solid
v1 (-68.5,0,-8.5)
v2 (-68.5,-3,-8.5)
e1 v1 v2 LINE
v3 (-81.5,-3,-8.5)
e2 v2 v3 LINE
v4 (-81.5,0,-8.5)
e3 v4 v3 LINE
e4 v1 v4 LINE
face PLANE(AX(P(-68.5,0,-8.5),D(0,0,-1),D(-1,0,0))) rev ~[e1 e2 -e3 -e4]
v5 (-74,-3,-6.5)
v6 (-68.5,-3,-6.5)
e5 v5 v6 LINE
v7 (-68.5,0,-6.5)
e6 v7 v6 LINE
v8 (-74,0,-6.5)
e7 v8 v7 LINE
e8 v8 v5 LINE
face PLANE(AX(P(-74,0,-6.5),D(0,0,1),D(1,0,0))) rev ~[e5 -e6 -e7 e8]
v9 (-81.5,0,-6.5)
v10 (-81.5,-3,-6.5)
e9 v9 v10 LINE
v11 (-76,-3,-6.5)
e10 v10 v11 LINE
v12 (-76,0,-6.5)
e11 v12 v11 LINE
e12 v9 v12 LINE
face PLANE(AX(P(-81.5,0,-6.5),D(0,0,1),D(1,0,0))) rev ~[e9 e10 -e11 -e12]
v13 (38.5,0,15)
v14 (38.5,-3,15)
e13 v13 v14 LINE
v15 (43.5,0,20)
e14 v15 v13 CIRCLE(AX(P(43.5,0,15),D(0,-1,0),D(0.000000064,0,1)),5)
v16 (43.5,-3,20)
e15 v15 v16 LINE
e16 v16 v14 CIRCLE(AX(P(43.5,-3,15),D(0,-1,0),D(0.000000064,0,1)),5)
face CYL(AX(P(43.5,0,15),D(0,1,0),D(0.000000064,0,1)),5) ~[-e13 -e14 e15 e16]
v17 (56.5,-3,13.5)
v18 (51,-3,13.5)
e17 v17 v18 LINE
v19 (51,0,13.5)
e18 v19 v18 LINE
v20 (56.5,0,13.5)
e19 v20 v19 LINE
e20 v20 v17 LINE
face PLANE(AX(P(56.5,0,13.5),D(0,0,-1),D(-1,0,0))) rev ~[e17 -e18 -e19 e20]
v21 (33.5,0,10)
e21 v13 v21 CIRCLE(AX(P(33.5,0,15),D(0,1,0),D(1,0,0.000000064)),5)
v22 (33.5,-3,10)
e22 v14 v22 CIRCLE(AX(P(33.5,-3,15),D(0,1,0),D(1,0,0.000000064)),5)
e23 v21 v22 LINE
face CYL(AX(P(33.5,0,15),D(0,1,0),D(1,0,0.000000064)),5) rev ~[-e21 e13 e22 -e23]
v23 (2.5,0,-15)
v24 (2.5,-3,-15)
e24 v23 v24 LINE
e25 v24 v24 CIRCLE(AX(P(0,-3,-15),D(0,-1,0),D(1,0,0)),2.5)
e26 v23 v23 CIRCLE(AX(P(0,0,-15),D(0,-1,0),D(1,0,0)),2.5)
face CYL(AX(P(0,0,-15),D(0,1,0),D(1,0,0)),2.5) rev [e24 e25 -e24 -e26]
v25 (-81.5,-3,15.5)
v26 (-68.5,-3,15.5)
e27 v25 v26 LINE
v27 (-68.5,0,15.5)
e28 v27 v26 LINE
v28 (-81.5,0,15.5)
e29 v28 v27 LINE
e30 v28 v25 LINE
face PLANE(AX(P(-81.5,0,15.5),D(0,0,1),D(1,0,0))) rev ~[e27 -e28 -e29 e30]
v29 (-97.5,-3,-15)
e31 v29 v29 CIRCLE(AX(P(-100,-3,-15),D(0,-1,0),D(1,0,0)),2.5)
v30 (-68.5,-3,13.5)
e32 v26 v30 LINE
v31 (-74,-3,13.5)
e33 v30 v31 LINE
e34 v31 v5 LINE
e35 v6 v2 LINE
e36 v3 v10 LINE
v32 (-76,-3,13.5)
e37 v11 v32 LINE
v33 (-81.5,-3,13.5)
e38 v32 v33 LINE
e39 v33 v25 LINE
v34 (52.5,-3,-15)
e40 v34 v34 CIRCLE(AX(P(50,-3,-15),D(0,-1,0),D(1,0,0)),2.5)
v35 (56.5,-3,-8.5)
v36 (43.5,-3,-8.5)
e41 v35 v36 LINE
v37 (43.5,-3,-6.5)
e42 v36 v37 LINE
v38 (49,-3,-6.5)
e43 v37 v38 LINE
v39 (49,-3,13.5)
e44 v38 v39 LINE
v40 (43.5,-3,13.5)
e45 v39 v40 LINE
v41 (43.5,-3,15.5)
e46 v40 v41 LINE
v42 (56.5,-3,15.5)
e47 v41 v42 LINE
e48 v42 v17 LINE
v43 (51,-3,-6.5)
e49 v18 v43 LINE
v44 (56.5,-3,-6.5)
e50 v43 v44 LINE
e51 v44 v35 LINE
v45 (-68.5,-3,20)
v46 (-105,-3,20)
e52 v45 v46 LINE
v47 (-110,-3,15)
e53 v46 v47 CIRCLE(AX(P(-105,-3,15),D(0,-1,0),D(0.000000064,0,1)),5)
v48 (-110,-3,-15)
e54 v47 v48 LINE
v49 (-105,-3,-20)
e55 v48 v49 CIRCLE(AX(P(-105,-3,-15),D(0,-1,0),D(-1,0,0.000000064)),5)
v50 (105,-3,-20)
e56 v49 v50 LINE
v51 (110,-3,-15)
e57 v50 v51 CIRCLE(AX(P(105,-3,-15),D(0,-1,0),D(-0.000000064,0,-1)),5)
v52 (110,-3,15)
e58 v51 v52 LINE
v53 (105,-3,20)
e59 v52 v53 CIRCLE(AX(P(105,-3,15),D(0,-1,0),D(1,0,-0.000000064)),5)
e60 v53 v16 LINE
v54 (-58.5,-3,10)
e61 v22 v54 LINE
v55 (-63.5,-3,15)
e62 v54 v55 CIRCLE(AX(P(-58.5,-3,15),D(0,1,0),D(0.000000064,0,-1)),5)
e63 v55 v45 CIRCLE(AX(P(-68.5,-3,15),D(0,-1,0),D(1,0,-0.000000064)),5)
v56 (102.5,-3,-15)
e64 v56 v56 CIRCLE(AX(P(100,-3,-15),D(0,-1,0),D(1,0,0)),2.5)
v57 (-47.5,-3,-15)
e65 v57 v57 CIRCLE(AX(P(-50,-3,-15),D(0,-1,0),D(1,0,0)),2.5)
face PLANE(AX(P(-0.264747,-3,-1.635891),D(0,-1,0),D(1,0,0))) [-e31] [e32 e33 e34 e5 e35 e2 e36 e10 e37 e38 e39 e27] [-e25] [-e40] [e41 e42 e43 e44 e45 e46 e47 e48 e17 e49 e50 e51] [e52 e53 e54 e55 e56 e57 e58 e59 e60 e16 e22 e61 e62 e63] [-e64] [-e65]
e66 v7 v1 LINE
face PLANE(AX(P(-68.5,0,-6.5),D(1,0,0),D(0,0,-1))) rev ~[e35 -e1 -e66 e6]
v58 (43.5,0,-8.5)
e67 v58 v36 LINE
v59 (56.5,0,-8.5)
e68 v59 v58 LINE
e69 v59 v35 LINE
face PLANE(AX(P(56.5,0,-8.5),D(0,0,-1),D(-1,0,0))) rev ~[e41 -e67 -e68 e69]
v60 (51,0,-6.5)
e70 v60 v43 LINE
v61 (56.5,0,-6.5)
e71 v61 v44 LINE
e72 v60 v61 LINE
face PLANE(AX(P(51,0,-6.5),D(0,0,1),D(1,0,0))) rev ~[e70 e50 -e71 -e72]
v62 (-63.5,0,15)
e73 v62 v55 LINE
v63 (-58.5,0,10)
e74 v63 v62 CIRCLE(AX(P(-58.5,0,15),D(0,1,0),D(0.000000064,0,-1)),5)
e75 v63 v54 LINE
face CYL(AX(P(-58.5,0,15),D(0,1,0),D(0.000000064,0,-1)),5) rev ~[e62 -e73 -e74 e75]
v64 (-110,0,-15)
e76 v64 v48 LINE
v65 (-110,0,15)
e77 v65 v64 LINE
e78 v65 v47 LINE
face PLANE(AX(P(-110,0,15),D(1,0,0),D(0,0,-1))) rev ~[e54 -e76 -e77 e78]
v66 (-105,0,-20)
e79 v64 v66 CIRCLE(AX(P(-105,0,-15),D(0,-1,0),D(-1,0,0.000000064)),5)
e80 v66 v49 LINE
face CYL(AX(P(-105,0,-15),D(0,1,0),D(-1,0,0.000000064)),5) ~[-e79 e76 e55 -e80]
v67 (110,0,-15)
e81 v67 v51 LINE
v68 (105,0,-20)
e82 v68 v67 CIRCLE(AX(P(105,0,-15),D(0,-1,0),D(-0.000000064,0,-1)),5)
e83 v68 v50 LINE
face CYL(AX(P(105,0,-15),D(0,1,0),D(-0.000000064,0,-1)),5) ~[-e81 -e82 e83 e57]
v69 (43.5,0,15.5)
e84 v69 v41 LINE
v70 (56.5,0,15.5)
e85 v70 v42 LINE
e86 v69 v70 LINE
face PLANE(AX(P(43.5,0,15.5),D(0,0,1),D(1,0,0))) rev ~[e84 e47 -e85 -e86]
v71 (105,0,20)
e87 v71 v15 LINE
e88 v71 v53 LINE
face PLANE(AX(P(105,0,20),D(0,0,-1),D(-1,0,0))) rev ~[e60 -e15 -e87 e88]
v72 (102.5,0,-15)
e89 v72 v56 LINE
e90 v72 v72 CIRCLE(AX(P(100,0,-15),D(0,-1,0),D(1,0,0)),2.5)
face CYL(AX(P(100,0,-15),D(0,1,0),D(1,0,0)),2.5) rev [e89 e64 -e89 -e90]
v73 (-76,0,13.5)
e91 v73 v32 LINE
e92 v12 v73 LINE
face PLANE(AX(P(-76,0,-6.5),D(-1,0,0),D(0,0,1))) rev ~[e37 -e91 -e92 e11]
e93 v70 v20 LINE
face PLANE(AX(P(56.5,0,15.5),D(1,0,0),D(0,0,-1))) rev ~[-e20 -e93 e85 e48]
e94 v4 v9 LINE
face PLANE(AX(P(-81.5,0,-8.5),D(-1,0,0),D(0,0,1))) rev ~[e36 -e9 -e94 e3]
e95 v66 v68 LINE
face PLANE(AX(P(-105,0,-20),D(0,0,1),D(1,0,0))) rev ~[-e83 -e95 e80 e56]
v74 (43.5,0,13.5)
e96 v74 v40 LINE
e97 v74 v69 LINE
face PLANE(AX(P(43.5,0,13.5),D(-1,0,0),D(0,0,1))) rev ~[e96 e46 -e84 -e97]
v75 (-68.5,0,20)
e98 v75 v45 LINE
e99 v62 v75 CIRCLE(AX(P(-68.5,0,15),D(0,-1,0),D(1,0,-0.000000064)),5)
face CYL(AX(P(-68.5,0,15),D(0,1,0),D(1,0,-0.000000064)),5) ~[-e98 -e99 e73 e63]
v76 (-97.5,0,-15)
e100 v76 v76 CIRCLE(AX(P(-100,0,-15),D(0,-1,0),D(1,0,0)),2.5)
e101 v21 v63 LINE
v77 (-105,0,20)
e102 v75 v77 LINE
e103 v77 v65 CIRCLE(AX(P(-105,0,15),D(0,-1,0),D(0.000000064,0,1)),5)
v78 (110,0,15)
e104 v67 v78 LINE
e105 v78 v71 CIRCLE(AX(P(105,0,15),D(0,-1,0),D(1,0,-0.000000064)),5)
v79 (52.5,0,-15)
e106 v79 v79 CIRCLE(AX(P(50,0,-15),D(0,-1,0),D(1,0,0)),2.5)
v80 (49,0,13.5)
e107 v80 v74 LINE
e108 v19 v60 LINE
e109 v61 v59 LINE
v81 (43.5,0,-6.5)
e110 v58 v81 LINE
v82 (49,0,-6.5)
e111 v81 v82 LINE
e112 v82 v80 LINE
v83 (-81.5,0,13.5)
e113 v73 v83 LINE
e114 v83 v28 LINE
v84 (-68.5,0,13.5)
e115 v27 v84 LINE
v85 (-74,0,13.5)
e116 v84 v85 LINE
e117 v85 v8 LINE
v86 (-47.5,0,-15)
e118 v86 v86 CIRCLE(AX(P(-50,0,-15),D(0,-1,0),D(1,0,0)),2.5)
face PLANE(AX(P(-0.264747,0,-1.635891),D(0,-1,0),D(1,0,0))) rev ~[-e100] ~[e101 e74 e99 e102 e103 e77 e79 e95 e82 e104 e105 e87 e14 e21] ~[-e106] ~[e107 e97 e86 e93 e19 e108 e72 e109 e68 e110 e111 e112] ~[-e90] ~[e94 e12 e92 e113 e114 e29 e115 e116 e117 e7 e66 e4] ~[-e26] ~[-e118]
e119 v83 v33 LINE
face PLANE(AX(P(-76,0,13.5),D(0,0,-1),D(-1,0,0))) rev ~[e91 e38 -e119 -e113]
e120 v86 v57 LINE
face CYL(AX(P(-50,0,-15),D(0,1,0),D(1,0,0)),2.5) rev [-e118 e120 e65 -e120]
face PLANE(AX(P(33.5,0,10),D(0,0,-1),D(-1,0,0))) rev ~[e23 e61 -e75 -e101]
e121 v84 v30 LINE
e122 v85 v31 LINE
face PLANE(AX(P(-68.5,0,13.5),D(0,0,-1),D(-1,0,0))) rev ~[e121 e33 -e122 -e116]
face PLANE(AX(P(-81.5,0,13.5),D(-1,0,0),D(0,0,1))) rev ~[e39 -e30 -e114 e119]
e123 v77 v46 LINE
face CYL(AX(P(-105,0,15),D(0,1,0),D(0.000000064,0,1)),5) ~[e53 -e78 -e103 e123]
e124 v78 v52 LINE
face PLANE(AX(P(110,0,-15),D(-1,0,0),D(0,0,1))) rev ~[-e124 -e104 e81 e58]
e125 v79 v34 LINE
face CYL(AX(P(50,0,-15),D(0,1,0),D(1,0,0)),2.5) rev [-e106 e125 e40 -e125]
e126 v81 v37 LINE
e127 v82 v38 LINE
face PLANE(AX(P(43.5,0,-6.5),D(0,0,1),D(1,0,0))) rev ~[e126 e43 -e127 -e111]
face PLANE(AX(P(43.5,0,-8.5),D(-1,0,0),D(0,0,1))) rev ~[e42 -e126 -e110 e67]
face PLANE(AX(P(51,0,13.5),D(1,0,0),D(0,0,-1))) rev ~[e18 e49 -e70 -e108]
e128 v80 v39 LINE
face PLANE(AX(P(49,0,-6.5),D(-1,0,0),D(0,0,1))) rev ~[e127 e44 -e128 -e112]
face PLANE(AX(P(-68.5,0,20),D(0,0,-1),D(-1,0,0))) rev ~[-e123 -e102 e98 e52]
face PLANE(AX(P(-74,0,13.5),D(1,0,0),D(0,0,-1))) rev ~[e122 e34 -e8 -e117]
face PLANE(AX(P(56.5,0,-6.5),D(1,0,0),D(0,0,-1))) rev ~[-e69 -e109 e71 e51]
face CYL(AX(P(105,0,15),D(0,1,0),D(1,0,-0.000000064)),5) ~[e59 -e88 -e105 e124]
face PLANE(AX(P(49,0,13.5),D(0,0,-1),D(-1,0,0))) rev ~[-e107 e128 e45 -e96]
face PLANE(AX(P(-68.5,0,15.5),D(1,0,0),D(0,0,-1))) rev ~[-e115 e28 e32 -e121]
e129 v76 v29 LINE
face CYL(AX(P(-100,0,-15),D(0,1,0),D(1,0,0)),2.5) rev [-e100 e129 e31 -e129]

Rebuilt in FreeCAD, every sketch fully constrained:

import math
import FreeCAD as App
import Part
import Sketcher
Q = App.Units.Quantity


def add_polygon(sketch, points):
    """Adds a closed chain of lines whose ends are joined by coincident constraints."""
    first, n = sketch.GeometryCount, len(points)
    for a, b in zip(points, points[1:] + points[:1]):
        sketch.addGeometry(Part.LineSegment(App.Vector(*a, 0), App.Vector(*b, 0)), False)
    for i in range(n):
        sketch.addConstraint(Sketcher.Constraint("Coincident", first + i, 2, first + (i + 1) % n, 1))

doc = App.newDocument("Part")
body = doc.addObject("PartDesign::Body", "Body")

# Sketch on XZ plane
sketch1 = doc.addObject("Sketcher::SketchObject", "Sketch")
body.addObject(sketch1)
sketch1.AttachmentSupport = (doc.XZ_Plane, [""])
sketch1.MapMode = "FlatFace"
sketch1.addGeometry(Part.LineSegment(App.Vector(-68.5, 20, 0), App.Vector(-105, 20, 0)), False)  # 0
sketch1.addGeometry(Part.ArcOfCircle(Part.Circle(App.Vector(-105, 15, 0), App.Vector(0, 0, 1), 5), math.radians(90), math.radians(180)), False)  # 1
sketch1.addGeometry(Part.LineSegment(App.Vector(-110, 15, 0), App.Vector(-110, -15, 0)), False)  # 2
sketch1.addGeometry(Part.ArcOfCircle(Part.Circle(App.Vector(-105, -15, 0), App.Vector(0, 0, 1), 5), math.radians(180), math.radians(270)), False)  # 3
sketch1.addGeometry(Part.LineSegment(App.Vector(-105, -20, 0), App.Vector(105, -20, 0)), False)  # 4
sketch1.addGeometry(Part.ArcOfCircle(Part.Circle(App.Vector(105, -15, 0), App.Vector(0, 0, 1), 5), math.radians(-90), math.radians(0)), False)  # 5
sketch1.addGeometry(Part.LineSegment(App.Vector(110, -15, 0), App.Vector(110, 15, 0)), False)  # 6
sketch1.addGeometry(Part.ArcOfCircle(Part.Circle(App.Vector(105, 15, 0), App.Vector(0, 0, 1), 5), math.radians(0), math.radians(90)), False)  # 7
sketch1.addGeometry(Part.LineSegment(App.Vector(105, 20, 0), App.Vector(43.5, 20, 0)), False)  # 8
sketch1.addGeometry(Part.ArcOfCircle(Part.Circle(App.Vector(43.5, 15, 0), App.Vector(0, 0, 1), 5), math.radians(90), math.radians(180)), False)  # 9
sketch1.addGeometry(Part.ArcOfCircle(Part.Circle(App.Vector(33.5, 15, 0), App.Vector(0, 0, 1), 5), math.radians(-90), math.radians(0)), False)  # 10
sketch1.addGeometry(Part.LineSegment(App.Vector(33.5, 10, 0), App.Vector(-58.5, 10, 0)), False)  # 11
sketch1.addGeometry(Part.ArcOfCircle(Part.Circle(App.Vector(-58.5, 15, 0), App.Vector(0, 0, 1), 5), math.radians(180), math.radians(270)), False)  # 12
sketch1.addGeometry(Part.ArcOfCircle(Part.Circle(App.Vector(-68.5, 15, 0), App.Vector(0, 0, 1), 5), math.radians(0), math.radians(90)), False)  # 13
sketch1.addGeometry(Part.Circle(App.Vector(-100, -15, 0), App.Vector(0, 0, 1), 2.5), False)  # 14
sketch1.addGeometry(Part.Circle(App.Vector(-50, -15, 0), App.Vector(0, 0, 1), 2.5), False)  # 15
sketch1.addGeometry(Part.Circle(App.Vector(0, -15, 0), App.Vector(0, 0, 1), 2.5), False)  # 16
sketch1.addGeometry(Part.Circle(App.Vector(50, -15, 0), App.Vector(0, 0, 1), 2.5), False)  # 17
sketch1.addGeometry(Part.Circle(App.Vector(100, -15, 0), App.Vector(0, 0, 1), 2.5), False)  # 18
add_polygon(sketch1, [(-76, 13.5), (-81.5, 13.5), (-81.5, 15.5), (-68.5, 15.5), (-68.5, 13.5), (-74, 13.5), (-74, -6.5), (-68.5, -6.5), (-68.5, -8.5), (-81.5, -8.5), (-81.5, -6.5), (-76, -6.5)])  # lines 19-30
add_polygon(sketch1, [(43.5, -8.5), (43.5, -6.5), (49, -6.5), (49, 13.5), (43.5, 13.5), (43.5, 15.5), (56.5, 15.5), (56.5, 13.5), (51, 13.5), (51, -6.5), (56.5, -6.5), (56.5, -8.5)])  # lines 31-42
sketch1.addConstraint([
    Sketcher.Constraint("Tangent", 0, 2, 1, 1),
    Sketcher.Constraint("Tangent", 1, 2, 2, 1),
    Sketcher.Constraint("Tangent", 2, 2, 3, 1),
    Sketcher.Constraint("Tangent", 3, 2, 4, 1),
    Sketcher.Constraint("Tangent", 4, 2, 5, 1),
    Sketcher.Constraint("Tangent", 5, 2, 6, 1),
    Sketcher.Constraint("Tangent", 6, 2, 7, 1),
    Sketcher.Constraint("Tangent", 7, 2, 8, 1),
    Sketcher.Constraint("Tangent", 8, 2, 9, 1),
    Sketcher.Constraint("Tangent", 9, 2, 10, 2),
    Sketcher.Constraint("Tangent", 10, 1, 11, 1),
    Sketcher.Constraint("Tangent", 11, 2, 12, 2),
    Sketcher.Constraint("Tangent", 12, 1, 13, 1),
    Sketcher.Constraint("Tangent", 13, 2, 0, 1),
    Sketcher.Constraint("Horizontal", 0),
    Sketcher.Constraint("Vertical", 2),
    Sketcher.Constraint("Horizontal", 4),
    Sketcher.Constraint("Vertical", 6),
    Sketcher.Constraint("Horizontal", 8),
    Sketcher.Constraint("Horizontal", 11),
    Sketcher.Constraint("Horizontal", 19),
    Sketcher.Constraint("Vertical", 20),
    Sketcher.Constraint("Horizontal", 21),
    Sketcher.Constraint("Vertical", 22),
    Sketcher.Constraint("Horizontal", 23),
    Sketcher.Constraint("Vertical", 24),
    Sketcher.Constraint("Horizontal", 25),
    Sketcher.Constraint("Vertical", 26),
    Sketcher.Constraint("Horizontal", 27),
    Sketcher.Constraint("Vertical", 28),
    Sketcher.Constraint("Horizontal", 29),
    Sketcher.Constraint("Vertical", 30),
    Sketcher.Constraint("Vertical", 31),
    Sketcher.Constraint("Horizontal", 32),
    Sketcher.Constraint("Vertical", 33),
    Sketcher.Constraint("Horizontal", 34),
    Sketcher.Constraint("Vertical", 35),
    Sketcher.Constraint("Horizontal", 36),
    Sketcher.Constraint("Vertical", 37),
    Sketcher.Constraint("Horizontal", 38),
    Sketcher.Constraint("Vertical", 39),
    Sketcher.Constraint("Horizontal", 40),
    Sketcher.Constraint("Vertical", 41),
    Sketcher.Constraint("Horizontal", 42),
    Sketcher.Constraint("Equal", 1, 3),
    Sketcher.Constraint("Equal", 3, 5),
    Sketcher.Constraint("Equal", 5, 7),
    Sketcher.Constraint("Equal", 7, 9),
    Sketcher.Constraint("Equal", 9, 10),
    Sketcher.Constraint("Equal", 10, 12),
    Sketcher.Constraint("Equal", 12, 13),
    Sketcher.Constraint("Equal", 14, 15),
    Sketcher.Constraint("Equal", 15, 16),
    Sketcher.Constraint("Equal", 16, 17),
    Sketcher.Constraint("Equal", 17, 18),
    Sketcher.Constraint("Symmetric", 1, 3, 5, 3, -1, 1),
    Sketcher.Constraint("Symmetric", 15, 3, 17, 3, -2),
    Sketcher.Constraint("Symmetric", 14, 3, 18, 3, -2),
    Sketcher.Constraint("PointOnObject", 16, 3, -2),
    Sketcher.Constraint("Horizontal", 1, 3, 7, 3),
    Sketcher.Constraint("Horizontal", 9, 3, 10, 3),
    Sketcher.Constraint("Horizontal", 5, 3, 14, 3),
    Sketcher.Constraint("Horizontal", 14, 3, 15, 3),
    Sketcher.Constraint("Horizontal", 15, 3, 16, 3),
    Sketcher.Constraint("Horizontal", 19, 2, 22, 2),
    Sketcher.Constraint("Horizontal", 25, 2, 28, 2),
    Sketcher.Constraint("Horizontal", 29, 2, 31, 2),
    Sketcher.Constraint("Horizontal", 30, 2, 33, 2),
    Sketcher.Constraint("Horizontal", 21, 2, 35, 2),
    Sketcher.Constraint("Horizontal", 34, 2, 37, 2),
    Sketcher.Constraint("Horizontal", 32, 2, 39, 2),
    Sketcher.Constraint("Horizontal", 27, 2, 41, 2),
    Sketcher.Constraint("Vertical", 13, 2, 21, 2),
    Sketcher.Constraint("Vertical", 22, 2, 25, 2),
    Sketcher.Constraint("Vertical", 20, 2, 27, 2),
    Sketcher.Constraint("Vertical", 8, 2, 31, 2),
    Sketcher.Constraint("Vertical", 31, 2, 34, 2),
    Sketcher.Constraint("Vertical", 37, 2, 40, 2),
    Sketcher.Constraint("Equal", 19, 23),
    Sketcher.Constraint("Equal", 29, 32),
    Sketcher.Constraint("Equal", 27, 36),
    Sketcher.Constraint("Equal", 34, 38),
    Sketcher.Constraint("Equal", 22, 26),
    Sketcher.Constraint("Diameter", 14, Q("5 mm")),
    Sketcher.Constraint("Radius", 1, Q("5 mm")),
    Sketcher.Constraint("DistanceX", 4, 1, 4, 2, Q("210 mm")),
    Sketcher.Constraint("DistanceX", 11, 2, 11, 1, Q("92 mm")),
    Sketcher.Constraint("DistanceX", 21, 1, 21, 2, Q("13 mm")),
    Sketcher.Constraint("DistanceY", 2, 2, 2, 1, Q("30 mm")),
    Sketcher.Constraint("DistanceY", 20, 1, 20, 2, Q("2 mm")),
    Sketcher.Constraint("DistanceY", 24, 2, 24, 1, Q("20 mm")),
    Sketcher.Constraint("DistanceX", 0, 2, 0, 1, Q("36.5 mm")),
    Sketcher.Constraint("DistanceX", 19, 2, 19, 1, Q("5.5 mm")),
    Sketcher.Constraint("DistanceX", 14, 3, -1, 1, Q("100 mm")),
    Sketcher.Constraint("DistanceX", 15, 3, -1, 1, Q("50 mm")),
    Sketcher.Constraint("DistanceY", -1, 1, 19, 2, Q("13.5 mm")),
])
pad1 = doc.addObject("PartDesign::Pad", "Pad")
body.addObject(pad1)
pad1.Profile = sketch1
pad1.Length = 3

doc.recompute()
